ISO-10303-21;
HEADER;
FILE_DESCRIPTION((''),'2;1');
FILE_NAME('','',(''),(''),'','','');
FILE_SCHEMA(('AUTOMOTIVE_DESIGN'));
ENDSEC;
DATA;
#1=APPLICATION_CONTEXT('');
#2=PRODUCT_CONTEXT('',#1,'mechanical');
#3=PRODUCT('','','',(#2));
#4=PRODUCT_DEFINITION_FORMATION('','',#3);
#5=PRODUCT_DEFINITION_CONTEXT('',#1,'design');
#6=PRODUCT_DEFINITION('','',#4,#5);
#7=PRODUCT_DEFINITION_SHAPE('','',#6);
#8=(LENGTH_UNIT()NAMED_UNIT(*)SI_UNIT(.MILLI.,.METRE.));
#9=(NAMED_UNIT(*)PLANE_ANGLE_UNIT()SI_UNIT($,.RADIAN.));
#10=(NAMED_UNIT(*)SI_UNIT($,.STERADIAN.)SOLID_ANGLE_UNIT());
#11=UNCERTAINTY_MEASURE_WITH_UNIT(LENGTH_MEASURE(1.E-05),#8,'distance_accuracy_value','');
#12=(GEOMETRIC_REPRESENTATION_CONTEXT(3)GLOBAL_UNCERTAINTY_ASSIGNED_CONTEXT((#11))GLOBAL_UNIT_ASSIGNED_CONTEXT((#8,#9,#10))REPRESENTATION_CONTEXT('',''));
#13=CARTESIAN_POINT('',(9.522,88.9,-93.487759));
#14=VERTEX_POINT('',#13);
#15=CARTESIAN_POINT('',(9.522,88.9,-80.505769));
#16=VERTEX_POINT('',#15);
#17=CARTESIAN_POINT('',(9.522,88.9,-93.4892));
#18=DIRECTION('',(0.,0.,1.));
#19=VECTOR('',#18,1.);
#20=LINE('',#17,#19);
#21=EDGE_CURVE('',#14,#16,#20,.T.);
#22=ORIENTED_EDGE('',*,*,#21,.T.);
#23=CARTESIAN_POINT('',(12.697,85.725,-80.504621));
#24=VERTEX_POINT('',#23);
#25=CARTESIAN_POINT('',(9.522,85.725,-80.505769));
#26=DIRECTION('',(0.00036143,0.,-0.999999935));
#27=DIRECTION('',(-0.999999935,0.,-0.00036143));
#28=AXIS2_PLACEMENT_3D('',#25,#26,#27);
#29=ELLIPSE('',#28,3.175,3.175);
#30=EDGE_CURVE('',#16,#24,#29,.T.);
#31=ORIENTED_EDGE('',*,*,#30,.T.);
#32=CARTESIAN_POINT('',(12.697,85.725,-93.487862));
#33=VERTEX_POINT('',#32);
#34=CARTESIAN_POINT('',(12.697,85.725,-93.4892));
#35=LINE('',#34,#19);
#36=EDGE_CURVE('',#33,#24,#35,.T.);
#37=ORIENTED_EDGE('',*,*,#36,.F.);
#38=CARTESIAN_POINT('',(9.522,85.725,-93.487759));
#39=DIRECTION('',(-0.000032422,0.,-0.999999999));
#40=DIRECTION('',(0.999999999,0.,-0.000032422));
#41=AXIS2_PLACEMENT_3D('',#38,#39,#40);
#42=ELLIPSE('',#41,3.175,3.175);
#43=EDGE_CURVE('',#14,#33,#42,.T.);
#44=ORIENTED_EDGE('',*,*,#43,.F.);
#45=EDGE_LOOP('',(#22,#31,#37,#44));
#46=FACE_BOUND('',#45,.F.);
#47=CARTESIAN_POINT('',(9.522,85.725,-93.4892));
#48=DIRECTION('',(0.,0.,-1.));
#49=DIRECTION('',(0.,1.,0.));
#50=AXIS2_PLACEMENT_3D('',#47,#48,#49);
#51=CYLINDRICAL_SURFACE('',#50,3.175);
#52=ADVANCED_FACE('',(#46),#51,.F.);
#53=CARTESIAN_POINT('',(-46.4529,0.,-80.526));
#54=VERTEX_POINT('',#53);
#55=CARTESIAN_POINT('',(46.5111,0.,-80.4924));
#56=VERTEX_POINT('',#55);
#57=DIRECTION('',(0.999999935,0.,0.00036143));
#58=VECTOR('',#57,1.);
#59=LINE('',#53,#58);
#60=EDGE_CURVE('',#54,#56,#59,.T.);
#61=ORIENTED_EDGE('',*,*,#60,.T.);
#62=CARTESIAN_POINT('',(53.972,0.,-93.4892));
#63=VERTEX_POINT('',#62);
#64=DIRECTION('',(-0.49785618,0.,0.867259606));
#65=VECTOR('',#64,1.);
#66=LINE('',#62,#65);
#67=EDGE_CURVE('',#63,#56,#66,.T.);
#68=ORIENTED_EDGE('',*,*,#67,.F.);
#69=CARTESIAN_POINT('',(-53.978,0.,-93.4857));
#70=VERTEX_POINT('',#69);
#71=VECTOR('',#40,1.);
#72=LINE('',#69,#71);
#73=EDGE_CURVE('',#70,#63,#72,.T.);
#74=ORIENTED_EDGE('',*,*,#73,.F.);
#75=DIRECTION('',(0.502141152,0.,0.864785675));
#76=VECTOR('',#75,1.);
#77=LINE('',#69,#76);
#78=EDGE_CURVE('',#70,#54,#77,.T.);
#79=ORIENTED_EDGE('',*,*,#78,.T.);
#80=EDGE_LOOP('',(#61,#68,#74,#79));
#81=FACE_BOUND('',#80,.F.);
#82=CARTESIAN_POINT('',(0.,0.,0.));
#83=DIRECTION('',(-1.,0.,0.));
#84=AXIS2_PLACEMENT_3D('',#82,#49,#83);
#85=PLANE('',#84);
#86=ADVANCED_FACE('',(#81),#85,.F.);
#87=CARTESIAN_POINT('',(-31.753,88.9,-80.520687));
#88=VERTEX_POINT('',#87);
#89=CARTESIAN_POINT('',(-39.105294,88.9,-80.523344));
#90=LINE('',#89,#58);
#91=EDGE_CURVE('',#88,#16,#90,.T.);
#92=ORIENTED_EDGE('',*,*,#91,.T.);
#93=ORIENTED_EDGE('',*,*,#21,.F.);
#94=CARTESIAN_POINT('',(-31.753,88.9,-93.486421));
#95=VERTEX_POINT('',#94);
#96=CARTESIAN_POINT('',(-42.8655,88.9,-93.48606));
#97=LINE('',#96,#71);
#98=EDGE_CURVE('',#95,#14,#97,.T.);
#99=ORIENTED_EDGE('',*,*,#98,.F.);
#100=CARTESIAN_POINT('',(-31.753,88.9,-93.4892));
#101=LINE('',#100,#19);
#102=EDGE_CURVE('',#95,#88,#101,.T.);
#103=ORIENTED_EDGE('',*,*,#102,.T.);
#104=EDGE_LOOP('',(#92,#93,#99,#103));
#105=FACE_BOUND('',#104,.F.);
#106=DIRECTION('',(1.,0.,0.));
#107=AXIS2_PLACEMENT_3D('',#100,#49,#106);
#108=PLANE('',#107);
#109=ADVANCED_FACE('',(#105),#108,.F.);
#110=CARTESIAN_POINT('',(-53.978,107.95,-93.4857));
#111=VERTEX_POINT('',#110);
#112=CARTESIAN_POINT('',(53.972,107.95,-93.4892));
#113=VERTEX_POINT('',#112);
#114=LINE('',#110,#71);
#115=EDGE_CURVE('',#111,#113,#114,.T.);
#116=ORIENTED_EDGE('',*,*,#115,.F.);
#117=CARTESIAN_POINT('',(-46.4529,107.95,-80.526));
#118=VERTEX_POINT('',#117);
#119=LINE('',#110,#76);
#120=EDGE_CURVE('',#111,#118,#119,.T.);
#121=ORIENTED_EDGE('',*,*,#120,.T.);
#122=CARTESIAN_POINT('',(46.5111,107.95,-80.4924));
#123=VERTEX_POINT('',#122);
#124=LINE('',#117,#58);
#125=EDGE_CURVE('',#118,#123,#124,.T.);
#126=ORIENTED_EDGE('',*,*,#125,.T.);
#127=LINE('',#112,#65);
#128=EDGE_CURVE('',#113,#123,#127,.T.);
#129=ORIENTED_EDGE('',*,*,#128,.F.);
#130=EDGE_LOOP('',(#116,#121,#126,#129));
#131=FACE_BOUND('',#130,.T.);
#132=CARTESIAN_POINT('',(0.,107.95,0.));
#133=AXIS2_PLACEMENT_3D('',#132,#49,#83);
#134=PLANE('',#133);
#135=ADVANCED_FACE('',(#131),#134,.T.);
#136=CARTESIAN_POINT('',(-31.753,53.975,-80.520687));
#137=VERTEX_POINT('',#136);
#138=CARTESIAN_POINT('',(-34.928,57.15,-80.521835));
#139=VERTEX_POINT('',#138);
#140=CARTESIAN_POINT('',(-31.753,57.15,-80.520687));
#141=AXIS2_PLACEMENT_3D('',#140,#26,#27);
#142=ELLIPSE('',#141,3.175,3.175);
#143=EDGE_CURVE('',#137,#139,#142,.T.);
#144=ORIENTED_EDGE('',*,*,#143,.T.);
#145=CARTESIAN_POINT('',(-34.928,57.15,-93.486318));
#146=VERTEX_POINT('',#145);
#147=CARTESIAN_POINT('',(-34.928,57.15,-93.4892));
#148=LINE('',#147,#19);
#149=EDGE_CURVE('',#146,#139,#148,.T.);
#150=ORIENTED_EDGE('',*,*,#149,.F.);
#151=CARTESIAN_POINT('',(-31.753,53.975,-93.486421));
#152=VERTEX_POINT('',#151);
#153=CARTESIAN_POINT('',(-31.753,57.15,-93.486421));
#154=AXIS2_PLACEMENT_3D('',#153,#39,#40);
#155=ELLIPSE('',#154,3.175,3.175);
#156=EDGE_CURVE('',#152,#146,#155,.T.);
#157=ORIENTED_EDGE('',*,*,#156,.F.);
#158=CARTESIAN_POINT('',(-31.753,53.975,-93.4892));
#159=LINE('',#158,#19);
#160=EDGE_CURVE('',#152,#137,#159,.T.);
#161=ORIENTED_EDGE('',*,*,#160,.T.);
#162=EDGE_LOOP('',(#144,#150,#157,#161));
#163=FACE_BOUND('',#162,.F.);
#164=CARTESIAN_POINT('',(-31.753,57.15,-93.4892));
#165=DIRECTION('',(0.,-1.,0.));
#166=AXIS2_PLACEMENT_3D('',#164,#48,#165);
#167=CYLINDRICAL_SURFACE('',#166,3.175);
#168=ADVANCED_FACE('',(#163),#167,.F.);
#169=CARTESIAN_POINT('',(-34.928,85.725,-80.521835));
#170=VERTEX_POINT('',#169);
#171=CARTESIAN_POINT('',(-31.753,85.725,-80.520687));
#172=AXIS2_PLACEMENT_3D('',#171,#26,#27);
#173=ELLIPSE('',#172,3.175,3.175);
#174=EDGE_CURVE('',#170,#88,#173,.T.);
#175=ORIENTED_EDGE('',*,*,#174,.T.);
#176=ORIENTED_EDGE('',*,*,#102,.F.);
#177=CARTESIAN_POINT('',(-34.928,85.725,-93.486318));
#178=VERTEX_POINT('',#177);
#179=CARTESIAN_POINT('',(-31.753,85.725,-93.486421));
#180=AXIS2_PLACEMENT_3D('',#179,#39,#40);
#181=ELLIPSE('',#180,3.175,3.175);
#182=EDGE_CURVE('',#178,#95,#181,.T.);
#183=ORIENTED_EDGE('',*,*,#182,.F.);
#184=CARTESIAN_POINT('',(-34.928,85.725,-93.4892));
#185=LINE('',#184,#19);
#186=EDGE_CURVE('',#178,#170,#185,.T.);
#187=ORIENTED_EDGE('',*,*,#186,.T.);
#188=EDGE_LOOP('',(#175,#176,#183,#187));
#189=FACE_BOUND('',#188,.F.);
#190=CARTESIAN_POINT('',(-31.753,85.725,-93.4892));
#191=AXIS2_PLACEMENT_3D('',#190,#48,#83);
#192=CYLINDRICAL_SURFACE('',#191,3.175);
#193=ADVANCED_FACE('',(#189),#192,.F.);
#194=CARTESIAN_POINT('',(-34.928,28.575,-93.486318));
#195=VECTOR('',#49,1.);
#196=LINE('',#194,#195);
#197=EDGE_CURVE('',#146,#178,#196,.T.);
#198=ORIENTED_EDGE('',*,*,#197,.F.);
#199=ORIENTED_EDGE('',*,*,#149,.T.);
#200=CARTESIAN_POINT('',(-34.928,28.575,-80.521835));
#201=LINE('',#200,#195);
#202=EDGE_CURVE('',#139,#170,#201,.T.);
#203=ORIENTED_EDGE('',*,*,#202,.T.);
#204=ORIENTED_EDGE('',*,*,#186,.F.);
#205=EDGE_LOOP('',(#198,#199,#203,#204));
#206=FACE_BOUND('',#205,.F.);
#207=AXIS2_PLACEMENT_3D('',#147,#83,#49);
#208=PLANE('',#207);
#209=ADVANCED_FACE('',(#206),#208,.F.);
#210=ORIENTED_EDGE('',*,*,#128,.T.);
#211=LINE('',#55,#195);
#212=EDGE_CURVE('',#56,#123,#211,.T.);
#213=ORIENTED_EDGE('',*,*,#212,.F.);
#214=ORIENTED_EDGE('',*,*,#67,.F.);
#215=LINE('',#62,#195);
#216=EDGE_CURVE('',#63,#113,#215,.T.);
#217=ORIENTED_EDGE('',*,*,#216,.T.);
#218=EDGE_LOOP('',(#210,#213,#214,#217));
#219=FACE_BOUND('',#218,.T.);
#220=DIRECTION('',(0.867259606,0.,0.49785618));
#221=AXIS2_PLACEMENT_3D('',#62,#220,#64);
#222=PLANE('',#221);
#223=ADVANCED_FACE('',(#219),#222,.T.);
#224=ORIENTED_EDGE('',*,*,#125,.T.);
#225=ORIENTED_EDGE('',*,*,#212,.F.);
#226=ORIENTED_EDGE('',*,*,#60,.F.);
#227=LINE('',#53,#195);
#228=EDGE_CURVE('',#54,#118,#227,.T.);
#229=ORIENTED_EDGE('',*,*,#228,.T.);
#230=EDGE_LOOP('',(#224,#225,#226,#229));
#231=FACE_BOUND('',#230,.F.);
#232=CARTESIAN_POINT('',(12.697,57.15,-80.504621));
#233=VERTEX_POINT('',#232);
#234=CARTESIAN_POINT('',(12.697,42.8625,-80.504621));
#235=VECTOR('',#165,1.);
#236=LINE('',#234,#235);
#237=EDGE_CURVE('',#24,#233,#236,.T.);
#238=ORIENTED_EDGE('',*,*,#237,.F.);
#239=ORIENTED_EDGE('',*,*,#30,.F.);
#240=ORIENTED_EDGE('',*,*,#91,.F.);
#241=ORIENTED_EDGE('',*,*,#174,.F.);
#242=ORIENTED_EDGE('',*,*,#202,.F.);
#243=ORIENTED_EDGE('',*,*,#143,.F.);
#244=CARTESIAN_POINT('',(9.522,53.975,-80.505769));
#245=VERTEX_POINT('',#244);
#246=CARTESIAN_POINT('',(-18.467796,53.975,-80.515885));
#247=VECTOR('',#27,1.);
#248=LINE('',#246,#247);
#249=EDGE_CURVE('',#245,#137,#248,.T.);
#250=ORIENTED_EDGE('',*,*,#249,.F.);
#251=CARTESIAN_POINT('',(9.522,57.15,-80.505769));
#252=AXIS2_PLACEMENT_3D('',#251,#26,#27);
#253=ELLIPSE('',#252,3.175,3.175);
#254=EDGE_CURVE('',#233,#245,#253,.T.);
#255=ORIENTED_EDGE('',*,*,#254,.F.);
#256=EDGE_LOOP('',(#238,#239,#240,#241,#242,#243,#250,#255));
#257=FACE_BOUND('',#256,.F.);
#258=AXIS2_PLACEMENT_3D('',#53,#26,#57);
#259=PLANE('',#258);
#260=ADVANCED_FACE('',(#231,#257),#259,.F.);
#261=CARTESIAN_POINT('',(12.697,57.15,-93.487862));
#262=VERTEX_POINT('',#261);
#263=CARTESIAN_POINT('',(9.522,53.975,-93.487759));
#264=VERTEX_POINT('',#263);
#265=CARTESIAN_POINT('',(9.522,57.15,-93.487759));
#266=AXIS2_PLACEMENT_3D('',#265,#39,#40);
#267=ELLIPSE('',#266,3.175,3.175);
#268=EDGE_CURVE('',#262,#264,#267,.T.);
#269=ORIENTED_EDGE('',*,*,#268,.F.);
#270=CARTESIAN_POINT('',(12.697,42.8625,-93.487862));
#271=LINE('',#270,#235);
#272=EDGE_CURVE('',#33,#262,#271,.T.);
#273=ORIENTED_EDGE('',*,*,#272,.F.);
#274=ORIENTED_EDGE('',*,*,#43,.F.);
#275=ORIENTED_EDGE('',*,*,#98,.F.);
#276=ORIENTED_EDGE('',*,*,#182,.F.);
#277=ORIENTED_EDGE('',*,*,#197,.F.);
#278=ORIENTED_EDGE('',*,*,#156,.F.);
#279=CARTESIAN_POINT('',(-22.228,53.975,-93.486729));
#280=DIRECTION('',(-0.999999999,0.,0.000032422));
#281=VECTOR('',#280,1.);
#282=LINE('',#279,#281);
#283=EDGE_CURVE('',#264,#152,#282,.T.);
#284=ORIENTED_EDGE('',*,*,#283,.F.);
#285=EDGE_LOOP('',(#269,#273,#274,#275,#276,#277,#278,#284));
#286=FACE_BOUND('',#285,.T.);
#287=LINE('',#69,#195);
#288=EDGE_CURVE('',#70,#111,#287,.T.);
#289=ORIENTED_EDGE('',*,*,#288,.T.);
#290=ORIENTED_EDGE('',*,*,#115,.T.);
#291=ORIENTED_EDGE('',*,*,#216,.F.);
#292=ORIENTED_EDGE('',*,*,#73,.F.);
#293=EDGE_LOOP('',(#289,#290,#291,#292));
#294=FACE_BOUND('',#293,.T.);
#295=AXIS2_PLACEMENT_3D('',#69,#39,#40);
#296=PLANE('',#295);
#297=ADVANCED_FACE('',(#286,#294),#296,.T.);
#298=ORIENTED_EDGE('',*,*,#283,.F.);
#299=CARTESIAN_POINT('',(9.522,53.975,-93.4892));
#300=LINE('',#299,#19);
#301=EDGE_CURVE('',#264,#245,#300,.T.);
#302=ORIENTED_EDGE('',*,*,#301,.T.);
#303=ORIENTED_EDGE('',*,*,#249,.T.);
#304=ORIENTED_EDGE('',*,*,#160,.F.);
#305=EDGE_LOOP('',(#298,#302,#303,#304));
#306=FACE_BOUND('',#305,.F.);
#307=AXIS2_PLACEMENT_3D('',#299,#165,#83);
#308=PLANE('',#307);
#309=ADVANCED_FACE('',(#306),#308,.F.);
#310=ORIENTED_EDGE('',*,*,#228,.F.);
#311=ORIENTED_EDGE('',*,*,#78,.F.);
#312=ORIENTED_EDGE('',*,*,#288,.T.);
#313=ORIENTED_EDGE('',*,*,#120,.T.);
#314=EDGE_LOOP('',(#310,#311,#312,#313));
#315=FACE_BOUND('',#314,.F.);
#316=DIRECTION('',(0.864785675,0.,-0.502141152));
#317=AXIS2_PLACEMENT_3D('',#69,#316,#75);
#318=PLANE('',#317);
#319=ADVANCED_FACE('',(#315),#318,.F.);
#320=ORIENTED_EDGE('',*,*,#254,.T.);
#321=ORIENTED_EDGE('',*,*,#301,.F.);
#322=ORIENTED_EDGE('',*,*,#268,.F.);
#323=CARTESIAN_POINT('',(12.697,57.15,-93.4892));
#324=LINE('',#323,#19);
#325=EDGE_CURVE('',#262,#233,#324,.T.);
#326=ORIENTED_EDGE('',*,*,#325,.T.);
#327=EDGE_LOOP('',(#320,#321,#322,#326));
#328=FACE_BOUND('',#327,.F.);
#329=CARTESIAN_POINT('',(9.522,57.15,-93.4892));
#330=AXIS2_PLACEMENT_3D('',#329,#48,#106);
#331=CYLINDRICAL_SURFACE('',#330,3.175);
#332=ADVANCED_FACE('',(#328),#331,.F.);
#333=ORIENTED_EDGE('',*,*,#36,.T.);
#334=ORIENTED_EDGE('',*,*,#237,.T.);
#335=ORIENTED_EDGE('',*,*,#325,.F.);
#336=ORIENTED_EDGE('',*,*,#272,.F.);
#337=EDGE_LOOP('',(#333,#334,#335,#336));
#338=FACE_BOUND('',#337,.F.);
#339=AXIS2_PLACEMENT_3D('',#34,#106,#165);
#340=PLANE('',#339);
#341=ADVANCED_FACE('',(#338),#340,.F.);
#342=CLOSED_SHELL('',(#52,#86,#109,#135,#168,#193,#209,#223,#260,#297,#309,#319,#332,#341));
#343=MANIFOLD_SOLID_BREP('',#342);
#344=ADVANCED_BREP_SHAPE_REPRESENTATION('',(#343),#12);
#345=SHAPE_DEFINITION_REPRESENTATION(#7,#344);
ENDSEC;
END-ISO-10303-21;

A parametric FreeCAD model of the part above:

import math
import FreeCAD as App
import Part
import Sketcher
from FreeCAD import Vector
Q = App.Units.Quantity


def add_polygon(sketch, points):
    """Adds a closed chain of lines whose ends are joined by coincident constraints."""
    first, n = sketch.GeometryCount, len(points)
    for a, b in zip(points, points[1:] + points[:1]):
        sketch.addGeometry(Part.LineSegment(App.Vector(*a, 0), App.Vector(*b, 0)), False)
    for i in range(n):
        sketch.addConstraint(Sketcher.Constraint("Coincident", first + i, 2, first + (i + 1) % n, 1))

doc = App.newDocument("Part")
body = doc.addObject("PartDesign::Body", "Body")

# Sketch on XZ plane
sketch1 = body.newObject("Sketcher::SketchObject", "Sketch")
sketch1.AttachmentSupport = (doc.getObject("XZ_Plane"), [""])
sketch1.MapMode = "FlatFace"
add_polygon(sketch1, [(46.5111, -80.4924), (53.972, -93.4892), (-53.978, -93.4857), (-46.4529, -80.526)])  # lines 0-3
sketch1.addConstraint([
    Sketcher.Constraint("Distance", 0, Q("0.59 in")),
    Sketcher.Constraint("Distance", 2, Q("0.59 in")),
    Sketcher.Constraint("Distance", 1, Q("4.25 in")),
    Sketcher.Constraint("Distance", 3, Q("3.66 in")),
    Sketcher.Constraint("DistanceY", 3, 2, -1, 1, Q("3.169 in")),
    Sketcher.Constraint("DistanceX", -1, 1, 0, 2, 53.972),
    Sketcher.Constraint("DistanceY", 0, 2, -1, 1, 93.4892),
    Sketcher.Constraint("DistanceY", 1, 2, -1, 1, 93.4857),
])
pad1 = body.newObject("PartDesign::Pad", "Pad")
pad1.Profile = sketch1
pad1.Length = Q("4.25 in")
pad1.Reversed = True

# Sketch on XY plane
sketch2 = body.newObject("Sketcher::SketchObject", "Sketch001")
sketch2.AttachmentSupport = (doc.getObject("XY_Plane"), [""])
sketch2.MapMode = "FlatFace"
sketch2.AttachmentOffset = App.Placement(Vector(0, 0, -93.4892), App.Rotation())
sketch2.addGeometry([
    Part.ArcOfCircle(Part.Circle(Vector(-31.753, 85.725, 0), Vector(0, 0, 1), 3.175), math.radians(90), math.radians(180)),  # 0
    Part.LineSegment(Vector(-31.753, 88.9, 0), Vector(9.522, 88.9, 0)),  # 1
    Part.ArcOfCircle(Part.Circle(Vector(9.522, 85.725, 0), Vector(0, 0, 1), 3.175), math.radians(0), math.radians(90)),  # 2
    Part.LineSegment(Vector(12.697, 85.725, 0), Vector(12.697, 57.15, 0)),  # 3
    Part.ArcOfCircle(Part.Circle(Vector(9.522, 57.15, 0), Vector(0, 0, 1), 3.175), math.radians(-90), math.radians(0)),  # 4
    Part.LineSegment(Vector(9.522, 53.975, 0), Vector(-31.753, 53.975, 0)),  # 5
    Part.ArcOfCircle(Part.Circle(Vector(-31.753, 57.15, 0), Vector(0, 0, 1), 3.175), math.radians(180), math.radians(270)),  # 6
    Part.LineSegment(Vector(-34.928, 57.15, 0), Vector(-34.928, 85.725, 0)),  # 7
], False)
sketch2.addConstraint([
    Sketcher.Constraint("Tangent", 0, 1, 1, 1),
    Sketcher.Constraint("Tangent", 1, 2, 2, 2),
    Sketcher.Constraint("Tangent", 2, 1, 3, 1),
    Sketcher.Constraint("Tangent", 3, 2, 4, 2),
    Sketcher.Constraint("Tangent", 4, 1, 5, 1),
    Sketcher.Constraint("Tangent", 5, 2, 6, 2),
    Sketcher.Constraint("Tangent", 6, 1, 7, 1),
    Sketcher.Constraint("Tangent", 7, 2, 0, 2),
    Sketcher.Constraint("Horizontal", 1),
    Sketcher.Constraint("Vertical", 3),
    Sketcher.Constraint("Horizontal", 5),
    Sketcher.Constraint("Vertical", 7),
    Sketcher.Constraint("Equal", 0, 2),
    Sketcher.Constraint("Equal", 2, 4),
    Sketcher.Constraint("Equal", 4, 6),
    Sketcher.Constraint("Radius", 0, Q("0.125 in")),
    Sketcher.Constraint("DistanceY", 4, 1, 1, 2, Q("1.375 in")),
    Sketcher.Constraint("DistanceY", -1, 1, 0, 1, Q("3.5 in")),
    Sketcher.Constraint("DistanceX", 1, 1, 1, 2, Q("1.625 in")),
    Sketcher.Constraint("DistanceX", 0, 3, -1, 1, 31.753),
])
pocket1 = body.newObject("PartDesign::Pocket", "Pocket")
pocket1.Profile = sketch2
pocket1.Length = 12.9994
pocket1.Reversed = True

doc.recompute()
